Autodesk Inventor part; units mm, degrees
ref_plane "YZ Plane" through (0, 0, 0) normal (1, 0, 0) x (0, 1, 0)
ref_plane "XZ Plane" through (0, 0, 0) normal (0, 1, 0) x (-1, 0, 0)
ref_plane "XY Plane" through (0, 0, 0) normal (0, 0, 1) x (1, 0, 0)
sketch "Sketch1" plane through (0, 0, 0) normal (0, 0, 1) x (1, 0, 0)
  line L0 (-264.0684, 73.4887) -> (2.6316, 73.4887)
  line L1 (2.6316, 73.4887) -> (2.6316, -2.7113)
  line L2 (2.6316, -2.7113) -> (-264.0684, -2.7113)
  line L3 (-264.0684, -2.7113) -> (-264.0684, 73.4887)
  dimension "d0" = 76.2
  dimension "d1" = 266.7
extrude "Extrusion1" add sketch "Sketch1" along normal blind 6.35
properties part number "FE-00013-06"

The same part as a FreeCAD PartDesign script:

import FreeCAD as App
import Part
import Sketcher

V = App.Vector
Q = App.Units.Quantity


def add_polygon(sketch, points):
    """Adds a closed chain of lines whose ends are joined by coincident constraints."""
    first, n = sketch.GeometryCount, len(points)
    for a, b in zip(points, points[1:] + points[:1]):
        sketch.addGeometry(Part.LineSegment(App.Vector(*a, 0), App.Vector(*b, 0)), False)
    for i in range(n):
        sketch.addConstraint(Sketcher.Constraint("Coincident", first + i, 2, first + (i + 1) % n, 1))

doc = App.newDocument("Part")
params = doc.addObject("Spreadsheet::Sheet", "Params")
for row, (alias, value) in enumerate([
    ("sketch1_height", "3 in"),
    ("sketch1_width", "10.5 in"),
    ("pad1_length", "0.25 in"),
], start=1):
    params.set(f"A{row}", alias)
    params.set(f"B{row}", "=" + value)
    params.setAlias(f"B{row}", alias)

body = doc.addObject("PartDesign::Body", "Body")

sketch1 = body.newObject("Sketcher::SketchObject", "Sketch")
sketch1.AttachmentSupport = (doc.getObject("XY_Plane"), [""])
sketch1.MapMode = "FlatFace"
add_polygon(sketch1, [(3, 73), (-264, 73), (-264, -3), (3, -3)])
sketch1.addConstraint(Sketcher.Constraint("Horizontal", 0))
sketch1.addConstraint(Sketcher.Constraint("Vertical", 1))
sketch1.addConstraint(Sketcher.Constraint("Horizontal", 2))
sketch1.addConstraint(Sketcher.Constraint("Vertical", 3))
sketch1.addConstraint(Sketcher.Constraint("DistanceY", 1, 2, 1, 1, Q("3 in")))
sketch1.addConstraint(Sketcher.Constraint("DistanceX", 0, 2, 0, 1, Q("10.5 in")))
sketch1.addConstraint(Sketcher.Constraint("DistanceX", 0, 2, -1, 1, Q("10.3964 in")))
sketch1.addConstraint(Sketcher.Constraint("DistanceY", -1, 1, 0, 2, 73.4887))
sketch1.setExpression("Constraints[8]", "Params.sketch1_height")
sketch1.setExpression("Constraints[9]", "Params.sketch1_width")
pad1 = body.newObject("PartDesign::Pad", "Pad")
pad1.Profile = sketch1
pad1.setExpression("Length", "Params.pad1_length")

doc.recompute()
